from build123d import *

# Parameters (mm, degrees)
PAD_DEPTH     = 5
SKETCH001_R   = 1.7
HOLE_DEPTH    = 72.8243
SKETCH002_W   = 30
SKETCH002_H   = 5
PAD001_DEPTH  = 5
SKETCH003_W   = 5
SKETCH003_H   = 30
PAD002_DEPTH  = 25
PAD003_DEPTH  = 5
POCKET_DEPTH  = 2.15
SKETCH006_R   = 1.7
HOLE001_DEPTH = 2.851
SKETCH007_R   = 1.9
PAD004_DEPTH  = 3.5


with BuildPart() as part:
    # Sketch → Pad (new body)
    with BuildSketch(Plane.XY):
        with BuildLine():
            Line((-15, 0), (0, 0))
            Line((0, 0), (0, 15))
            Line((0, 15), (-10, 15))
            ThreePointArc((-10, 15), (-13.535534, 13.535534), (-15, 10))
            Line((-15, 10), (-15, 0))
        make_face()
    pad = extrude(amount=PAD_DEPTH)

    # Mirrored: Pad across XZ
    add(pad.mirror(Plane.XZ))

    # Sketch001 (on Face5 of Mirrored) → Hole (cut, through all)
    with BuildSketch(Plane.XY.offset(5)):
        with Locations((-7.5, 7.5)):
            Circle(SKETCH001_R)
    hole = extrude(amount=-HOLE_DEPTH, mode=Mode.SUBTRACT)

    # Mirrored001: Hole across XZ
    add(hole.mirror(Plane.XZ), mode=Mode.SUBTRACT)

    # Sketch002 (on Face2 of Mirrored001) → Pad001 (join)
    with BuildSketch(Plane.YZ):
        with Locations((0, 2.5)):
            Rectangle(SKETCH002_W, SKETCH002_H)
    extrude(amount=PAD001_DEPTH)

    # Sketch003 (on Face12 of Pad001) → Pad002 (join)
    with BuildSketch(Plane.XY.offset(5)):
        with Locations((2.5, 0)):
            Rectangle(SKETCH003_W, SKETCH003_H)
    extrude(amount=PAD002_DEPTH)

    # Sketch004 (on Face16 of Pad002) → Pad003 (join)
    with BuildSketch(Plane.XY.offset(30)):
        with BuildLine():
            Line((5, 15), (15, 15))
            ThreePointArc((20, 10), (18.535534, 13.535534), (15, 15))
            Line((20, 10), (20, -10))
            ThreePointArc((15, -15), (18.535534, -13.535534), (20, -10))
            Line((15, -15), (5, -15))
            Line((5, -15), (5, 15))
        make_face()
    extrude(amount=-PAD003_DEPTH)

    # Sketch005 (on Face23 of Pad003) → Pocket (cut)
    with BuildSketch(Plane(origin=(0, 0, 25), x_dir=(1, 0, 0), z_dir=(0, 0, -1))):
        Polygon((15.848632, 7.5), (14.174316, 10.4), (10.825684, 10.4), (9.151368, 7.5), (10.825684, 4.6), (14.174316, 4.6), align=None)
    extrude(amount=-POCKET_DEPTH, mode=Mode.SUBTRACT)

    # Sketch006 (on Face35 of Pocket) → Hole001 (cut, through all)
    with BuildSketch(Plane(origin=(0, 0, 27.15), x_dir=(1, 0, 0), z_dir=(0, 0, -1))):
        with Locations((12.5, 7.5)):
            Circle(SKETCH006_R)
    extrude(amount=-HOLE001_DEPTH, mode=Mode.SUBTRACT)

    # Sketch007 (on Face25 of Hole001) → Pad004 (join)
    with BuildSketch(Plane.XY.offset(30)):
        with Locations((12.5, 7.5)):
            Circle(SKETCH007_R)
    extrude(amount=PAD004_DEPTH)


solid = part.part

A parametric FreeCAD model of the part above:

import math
import FreeCAD as App
import Part
import Sketcher
Q = App.Units.Quantity


def add_polygon(sketch, points):
    """Adds a closed chain of lines whose ends are joined by coincident constraints."""
    first, n = sketch.GeometryCount, len(points)
    for a, b in zip(points, points[1:] + points[:1]):
        sketch.addGeometry(Part.LineSegment(App.Vector(*a, 0), App.Vector(*b, 0)), False)
    for i in range(n):
        sketch.addConstraint(Sketcher.Constraint("Coincident", first + i, 2, first + (i + 1) % n, 1))

doc = App.newDocument("Part")
body = doc.addObject("PartDesign::Body", "Body")

sketch1 = body.newObject("Sketcher::SketchObject", "Sketch")
sketch1.AttachmentSupport = (doc.getObject("XY_Plane"), [""])
sketch1.MapMode = "FlatFace"
sketch1.addGeometry(Part.LineSegment(App.Vector(-15, 0, 0), App.Vector(0, 0, 0)), False)
sketch1.addGeometry(Part.LineSegment(App.Vector(0, 0, 0), App.Vector(0, 15, 0)), False)
sketch1.addGeometry(Part.LineSegment(App.Vector(0, 15, 0), App.Vector(-10, 15, 0)), False)
sketch1.addGeometry(Part.ArcOfCircle(Part.Circle(App.Vector(-10, 10, 0), App.Vector(0, 0, 1), 5), math.radians(89.999996), math.radians(180.000004)), False)
sketch1.addGeometry(Part.LineSegment(App.Vector(-15, 10, 0), App.Vector(-15, 0, 0)), False)
sketch1.addConstraint(Sketcher.Constraint("Coincident", 0, 2, 1, 1))
sketch1.addConstraint(Sketcher.Constraint("Coincident", 1, 2, 2, 1))
sketch1.addConstraint(Sketcher.Constraint("Tangent", 2, 2, 3, 1))
sketch1.addConstraint(Sketcher.Constraint("Tangent", 3, 2, 4, 1))
sketch1.addConstraint(Sketcher.Constraint("Coincident", 4, 2, 0, 1))
sketch1.addConstraint(Sketcher.Constraint("Horizontal", 0))
sketch1.addConstraint(Sketcher.Constraint("Vertical", 1))
sketch1.addConstraint(Sketcher.Constraint("Horizontal", 2))
sketch1.addConstraint(Sketcher.Constraint("Vertical", 4))
sketch1.addConstraint(Sketcher.Constraint("Coincident", 0, 2, -1, 1))
sketch1.addConstraint(Sketcher.Constraint("Equal", 0, 1))
sketch1.addConstraint(Sketcher.Constraint("Radius", 3, 5.0))
sketch1.addConstraint(Sketcher.Constraint("DistanceX", 0, 1, 0, 2, 15.0))
pad1 = body.newObject("PartDesign::Pad", "Pad")
pad1.Profile = sketch1
pad1.Length = 5
doc.recompute()

mirrored = body.newObject("PartDesign::Mirrored", "Mirrored")
mirrored.Originals = [pad1]
mirrored.MirrorPlane = (doc.getObject("XZ_Plane"), [""])
body.Tip = mirrored

sketch2 = body.newObject("Sketcher::SketchObject", "Sketch001")
sketch2.AttachmentSupport = (doc.getObject("XY_Plane"), [""])
sketch2.MapMode = "FlatFace"
sketch2.AttachmentOffset = App.Placement(App.Vector(0, 0, 5), App.Rotation())
sketch2.addGeometry(Part.Circle(App.Vector(-7.5, 7.5, 0), App.Vector(0, 0, 1), 1.7), False)
sketch2.addConstraint(Sketcher.Constraint("Diameter", 0, 3.4))
sketch2.addConstraint(Sketcher.Constraint("DistanceX", 0, 3, -1, 1, 7.5))
sketch2.addConstraint(Sketcher.Constraint("DistanceY", -1, 1, 0, 3, 7.5))
pocket1 = body.newObject("PartDesign::Pocket", "Pocket")
pocket1.Profile = sketch2
pocket1.Type = "ThroughAll"
doc.recompute()

mirrored2 = body.newObject("PartDesign::Mirrored", "Mirrored001")
mirrored2.Originals = [pocket1]
mirrored2.MirrorPlane = (doc.getObject("XZ_Plane"), [""])
body.Tip = mirrored2

sketch3 = body.newObject("Sketcher::SketchObject", "Sketch002")
sketch3.AttachmentSupport = (doc.getObject("YZ_Plane"), [""])
sketch3.MapMode = "FlatFace"
add_polygon(sketch3, [(-15, 5), (-15, 0), (15, 0), (15, 5)])
sketch3.addConstraint(Sketcher.Constraint("Vertical", 0))
sketch3.addConstraint(Sketcher.Constraint("Horizontal", 1))
sketch3.addConstraint(Sketcher.Constraint("Vertical", 2))
sketch3.addConstraint(Sketcher.Constraint("Horizontal", 3))
sketch3.addConstraint(Sketcher.Constraint("Symmetric", 0, 2, 1, 2, -1, 1))
sketch3.addConstraint(Sketcher.Constraint("DistanceX", 1, 1, 1, 2, 30.0))
sketch3.addConstraint(Sketcher.Constraint("DistanceY", 0, 2, 0, 1, 5.0))
pad2 = body.newObject("PartDesign::Pad", "Pad001")
pad2.Profile = sketch3
pad2.Length = 5

sketch4 = body.newObject("Sketcher::SketchObject", "Sketch003")
sketch4.AttachmentSupport = (doc.getObject("XY_Plane"), [""])
sketch4.MapMode = "FlatFace"
sketch4.AttachmentOffset = App.Placement(App.Vector(0, 0, 5), App.Rotation())
add_polygon(sketch4, [(0, 15), (0, -15), (5, -15), (5, 15)])
sketch4.addConstraint(Sketcher.Constraint("Vertical", 0))
sketch4.addConstraint(Sketcher.Constraint("Horizontal", 1))
sketch4.addConstraint(Sketcher.Constraint("Vertical", 2))
sketch4.addConstraint(Sketcher.Constraint("Horizontal", 3))
sketch4.addConstraint(Sketcher.Constraint("Symmetric", 0, 2, 3, 2, -1, 1))
sketch4.addConstraint(Sketcher.Constraint("DistanceX", 1, 1, 1, 2, 5.0))
sketch4.addConstraint(Sketcher.Constraint("DistanceY", 0, 2, 0, 1, 30.0))
pad3 = body.newObject("PartDesign::Pad", "Pad002")
pad3.Profile = sketch4
pad3.Length = 25

sketch5 = body.newObject("Sketcher::SketchObject", "Sketch004")
sketch5.AttachmentSupport = (doc.getObject("XY_Plane"), [""])
sketch5.MapMode = "FlatFace"
sketch5.AttachmentOffset = App.Placement(App.Vector(0, 0, 30), App.Rotation())
sketch5.addGeometry(Part.LineSegment(App.Vector(15, 15, 0), App.Vector(5, 15, 0)), False)
sketch5.addGeometry(Part.LineSegment(App.Vector(5, 15, 0), App.Vector(5, -15, 0)), False)
sketch5.addGeometry(Part.LineSegment(App.Vector(5, -15, 0), App.Vector(15, -15, 0)), False)
sketch5.addGeometry(Part.ArcOfCircle(Part.Circle(App.Vector(15, -10, 0), App.Vector(0, 0, 1), 5), math.radians(-90.000004), math.radians(0.000004)), False)
sketch5.addGeometry(Part.LineSegment(App.Vector(20, -10, 0), App.Vector(20, 10, 0)), False)
sketch5.addGeometry(Part.ArcOfCircle(Part.Circle(App.Vector(15, 10, 0), App.Vector(0, 0, 1), 5), math.radians(-0.000004), math.radians(90.000004)), False)
sketch5.addConstraint(Sketcher.Constraint("Coincident", 0, 2, 1, 1))
sketch5.addConstraint(Sketcher.Constraint("Coincident", 1, 2, 2, 1))
sketch5.addConstraint(Sketcher.Constraint("Tangent", 2, 2, 3, 1))
sketch5.addConstraint(Sketcher.Constraint("Tangent", 3, 2, 4, 1))
sketch5.addConstraint(Sketcher.Constraint("Tangent", 4, 2, 5, 1))
sketch5.addConstraint(Sketcher.Constraint("Tangent", 5, 2, 0, 1))
sketch5.addConstraint(Sketcher.Constraint("Horizontal", 0))
sketch5.addConstraint(Sketcher.Constraint("Vertical", 1))
sketch5.addConstraint(Sketcher.Constraint("Horizontal", 2))
sketch5.addConstraint(Sketcher.Constraint("Vertical", 4))
sketch5.addConstraint(Sketcher.Constraint("Equal", 3, 5))
sketch5.addConstraint(Sketcher.Constraint("Radius", 3, 5.0))
sketch5.addConstraint(Sketcher.Constraint("DistanceX", 0, 2, 0, 1, 10.0))
sketch5.addConstraint(Sketcher.Constraint("DistanceY", 1, 2, 1, 1, 30.0))
sketch5.addConstraint(Sketcher.Constraint("DistanceX", -1, 1, 3, 3, 15.0))
sketch5.addConstraint(Sketcher.Constraint("DistanceY", 3, 3, -1, 1, 10.0))
pad4 = body.newObject("PartDesign::Pad", "Pad003")
pad4.Profile = sketch5
pad4.Length = 5
pad4.Reversed = True

sketch6 = body.newObject("Sketcher::SketchObject", "Sketch005")
sketch6.AttachmentSupport = (doc.getObject("XY_Plane"), [""])
sketch6.MapMode = "FlatFace"
sketch6.AttachmentOffset = App.Placement(App.Vector(0, 0, 25), App.Rotation())
add_polygon(sketch6, [(15.848632, -7.5), (14.174316, -10.4), (10.825684, -10.4), (9.151368, -7.5), (10.825684, -4.6), (14.174316, -4.6)])
sketch6.addConstraint(Sketcher.Constraint("Horizontal", 1))
sketch6.addConstraint(Sketcher.Constraint("Horizontal", 4))
sketch6.addConstraint(Sketcher.Constraint("Parallel", 0, 3))
sketch6.addConstraint(Sketcher.Constraint("Parallel", 2, 5))
sketch6.addConstraint(Sketcher.Constraint("Horizontal", 2, 2, 5, 2))
sketch6.addConstraint(Sketcher.Constraint("Vertical", 1, 2, 3, 2))
sketch6.addConstraint(Sketcher.Constraint("Vertical", 0, 2, 4, 2))
sketch6.addConstraint(Sketcher.Constraint("Angle", 0, Q("-120.000003 deg")))
sketch6.addConstraint(Sketcher.Constraint("DistanceY", 0, 2, -1, 1, 10.4))
sketch6.addConstraint(Sketcher.Constraint("DistanceY", 2, 2, -1, 1, 7.5))
sketch6.addConstraint(Sketcher.Constraint("DistanceX", 1, 2, 1, 1, 3.348632))
sketch6.addConstraint(Sketcher.Constraint("DistanceX", -1, 1, 0, 2, 14.174316))
pocket2 = body.newObject("PartDesign::Pocket", "Pocket001")
pocket2.Profile = sketch6
pocket2.Length = 2.15
pocket2.Reversed = True

sketch7 = body.newObject("Sketcher::SketchObject", "Sketch006")
sketch7.AttachmentSupport = (doc.getObject("XY_Plane"), [""])
sketch7.MapMode = "FlatFace"
sketch7.AttachmentOffset = App.Placement(App.Vector(0, 0, 27.15), App.Rotation())
sketch7.addGeometry(Part.Circle(App.Vector(12.5, -7.5, 0), App.Vector(0, 0, 1), 1.7), False)
sketch7.addConstraint(Sketcher.Constraint("Diameter", 0, 3.4))
sketch7.addConstraint(Sketcher.Constraint("DistanceX", -1, 1, 0, 3, 12.5))
sketch7.addConstraint(Sketcher.Constraint("DistanceY", 0, 3, -1, 1, 7.5))
pocket3 = body.newObject("PartDesign::Pocket", "Pocket002")
pocket3.Profile = sketch7
pocket3.Type = "ThroughAll"
pocket3.Reversed = True

sketch8 = body.newObject("Sketcher::SketchObject", "Sketch007")
sketch8.AttachmentSupport = (doc.getObject("XY_Plane"), [""])
sketch8.MapMode = "FlatFace"
sketch8.AttachmentOffset = App.Placement(App.Vector(0, 0, 30), App.Rotation())
sketch8.addGeometry(Part.Circle(App.Vector(12.5, 7.5, 0), App.Vector(0, 0, 1), 1.9), False)
sketch8.addConstraint(Sketcher.Constraint("Diameter", 0, 3.8))
sketch8.addConstraint(Sketcher.Constraint("DistanceX", -1, 1, 0, 3, 12.5))
sketch8.addConstraint(Sketcher.Constraint("DistanceY", -1, 1, 0, 3, 7.5))
pad5 = body.newObject("PartDesign::Pad", "Pad004")
pad5.Profile = sketch8
pad5.Length = 3.5

doc.recompute()
